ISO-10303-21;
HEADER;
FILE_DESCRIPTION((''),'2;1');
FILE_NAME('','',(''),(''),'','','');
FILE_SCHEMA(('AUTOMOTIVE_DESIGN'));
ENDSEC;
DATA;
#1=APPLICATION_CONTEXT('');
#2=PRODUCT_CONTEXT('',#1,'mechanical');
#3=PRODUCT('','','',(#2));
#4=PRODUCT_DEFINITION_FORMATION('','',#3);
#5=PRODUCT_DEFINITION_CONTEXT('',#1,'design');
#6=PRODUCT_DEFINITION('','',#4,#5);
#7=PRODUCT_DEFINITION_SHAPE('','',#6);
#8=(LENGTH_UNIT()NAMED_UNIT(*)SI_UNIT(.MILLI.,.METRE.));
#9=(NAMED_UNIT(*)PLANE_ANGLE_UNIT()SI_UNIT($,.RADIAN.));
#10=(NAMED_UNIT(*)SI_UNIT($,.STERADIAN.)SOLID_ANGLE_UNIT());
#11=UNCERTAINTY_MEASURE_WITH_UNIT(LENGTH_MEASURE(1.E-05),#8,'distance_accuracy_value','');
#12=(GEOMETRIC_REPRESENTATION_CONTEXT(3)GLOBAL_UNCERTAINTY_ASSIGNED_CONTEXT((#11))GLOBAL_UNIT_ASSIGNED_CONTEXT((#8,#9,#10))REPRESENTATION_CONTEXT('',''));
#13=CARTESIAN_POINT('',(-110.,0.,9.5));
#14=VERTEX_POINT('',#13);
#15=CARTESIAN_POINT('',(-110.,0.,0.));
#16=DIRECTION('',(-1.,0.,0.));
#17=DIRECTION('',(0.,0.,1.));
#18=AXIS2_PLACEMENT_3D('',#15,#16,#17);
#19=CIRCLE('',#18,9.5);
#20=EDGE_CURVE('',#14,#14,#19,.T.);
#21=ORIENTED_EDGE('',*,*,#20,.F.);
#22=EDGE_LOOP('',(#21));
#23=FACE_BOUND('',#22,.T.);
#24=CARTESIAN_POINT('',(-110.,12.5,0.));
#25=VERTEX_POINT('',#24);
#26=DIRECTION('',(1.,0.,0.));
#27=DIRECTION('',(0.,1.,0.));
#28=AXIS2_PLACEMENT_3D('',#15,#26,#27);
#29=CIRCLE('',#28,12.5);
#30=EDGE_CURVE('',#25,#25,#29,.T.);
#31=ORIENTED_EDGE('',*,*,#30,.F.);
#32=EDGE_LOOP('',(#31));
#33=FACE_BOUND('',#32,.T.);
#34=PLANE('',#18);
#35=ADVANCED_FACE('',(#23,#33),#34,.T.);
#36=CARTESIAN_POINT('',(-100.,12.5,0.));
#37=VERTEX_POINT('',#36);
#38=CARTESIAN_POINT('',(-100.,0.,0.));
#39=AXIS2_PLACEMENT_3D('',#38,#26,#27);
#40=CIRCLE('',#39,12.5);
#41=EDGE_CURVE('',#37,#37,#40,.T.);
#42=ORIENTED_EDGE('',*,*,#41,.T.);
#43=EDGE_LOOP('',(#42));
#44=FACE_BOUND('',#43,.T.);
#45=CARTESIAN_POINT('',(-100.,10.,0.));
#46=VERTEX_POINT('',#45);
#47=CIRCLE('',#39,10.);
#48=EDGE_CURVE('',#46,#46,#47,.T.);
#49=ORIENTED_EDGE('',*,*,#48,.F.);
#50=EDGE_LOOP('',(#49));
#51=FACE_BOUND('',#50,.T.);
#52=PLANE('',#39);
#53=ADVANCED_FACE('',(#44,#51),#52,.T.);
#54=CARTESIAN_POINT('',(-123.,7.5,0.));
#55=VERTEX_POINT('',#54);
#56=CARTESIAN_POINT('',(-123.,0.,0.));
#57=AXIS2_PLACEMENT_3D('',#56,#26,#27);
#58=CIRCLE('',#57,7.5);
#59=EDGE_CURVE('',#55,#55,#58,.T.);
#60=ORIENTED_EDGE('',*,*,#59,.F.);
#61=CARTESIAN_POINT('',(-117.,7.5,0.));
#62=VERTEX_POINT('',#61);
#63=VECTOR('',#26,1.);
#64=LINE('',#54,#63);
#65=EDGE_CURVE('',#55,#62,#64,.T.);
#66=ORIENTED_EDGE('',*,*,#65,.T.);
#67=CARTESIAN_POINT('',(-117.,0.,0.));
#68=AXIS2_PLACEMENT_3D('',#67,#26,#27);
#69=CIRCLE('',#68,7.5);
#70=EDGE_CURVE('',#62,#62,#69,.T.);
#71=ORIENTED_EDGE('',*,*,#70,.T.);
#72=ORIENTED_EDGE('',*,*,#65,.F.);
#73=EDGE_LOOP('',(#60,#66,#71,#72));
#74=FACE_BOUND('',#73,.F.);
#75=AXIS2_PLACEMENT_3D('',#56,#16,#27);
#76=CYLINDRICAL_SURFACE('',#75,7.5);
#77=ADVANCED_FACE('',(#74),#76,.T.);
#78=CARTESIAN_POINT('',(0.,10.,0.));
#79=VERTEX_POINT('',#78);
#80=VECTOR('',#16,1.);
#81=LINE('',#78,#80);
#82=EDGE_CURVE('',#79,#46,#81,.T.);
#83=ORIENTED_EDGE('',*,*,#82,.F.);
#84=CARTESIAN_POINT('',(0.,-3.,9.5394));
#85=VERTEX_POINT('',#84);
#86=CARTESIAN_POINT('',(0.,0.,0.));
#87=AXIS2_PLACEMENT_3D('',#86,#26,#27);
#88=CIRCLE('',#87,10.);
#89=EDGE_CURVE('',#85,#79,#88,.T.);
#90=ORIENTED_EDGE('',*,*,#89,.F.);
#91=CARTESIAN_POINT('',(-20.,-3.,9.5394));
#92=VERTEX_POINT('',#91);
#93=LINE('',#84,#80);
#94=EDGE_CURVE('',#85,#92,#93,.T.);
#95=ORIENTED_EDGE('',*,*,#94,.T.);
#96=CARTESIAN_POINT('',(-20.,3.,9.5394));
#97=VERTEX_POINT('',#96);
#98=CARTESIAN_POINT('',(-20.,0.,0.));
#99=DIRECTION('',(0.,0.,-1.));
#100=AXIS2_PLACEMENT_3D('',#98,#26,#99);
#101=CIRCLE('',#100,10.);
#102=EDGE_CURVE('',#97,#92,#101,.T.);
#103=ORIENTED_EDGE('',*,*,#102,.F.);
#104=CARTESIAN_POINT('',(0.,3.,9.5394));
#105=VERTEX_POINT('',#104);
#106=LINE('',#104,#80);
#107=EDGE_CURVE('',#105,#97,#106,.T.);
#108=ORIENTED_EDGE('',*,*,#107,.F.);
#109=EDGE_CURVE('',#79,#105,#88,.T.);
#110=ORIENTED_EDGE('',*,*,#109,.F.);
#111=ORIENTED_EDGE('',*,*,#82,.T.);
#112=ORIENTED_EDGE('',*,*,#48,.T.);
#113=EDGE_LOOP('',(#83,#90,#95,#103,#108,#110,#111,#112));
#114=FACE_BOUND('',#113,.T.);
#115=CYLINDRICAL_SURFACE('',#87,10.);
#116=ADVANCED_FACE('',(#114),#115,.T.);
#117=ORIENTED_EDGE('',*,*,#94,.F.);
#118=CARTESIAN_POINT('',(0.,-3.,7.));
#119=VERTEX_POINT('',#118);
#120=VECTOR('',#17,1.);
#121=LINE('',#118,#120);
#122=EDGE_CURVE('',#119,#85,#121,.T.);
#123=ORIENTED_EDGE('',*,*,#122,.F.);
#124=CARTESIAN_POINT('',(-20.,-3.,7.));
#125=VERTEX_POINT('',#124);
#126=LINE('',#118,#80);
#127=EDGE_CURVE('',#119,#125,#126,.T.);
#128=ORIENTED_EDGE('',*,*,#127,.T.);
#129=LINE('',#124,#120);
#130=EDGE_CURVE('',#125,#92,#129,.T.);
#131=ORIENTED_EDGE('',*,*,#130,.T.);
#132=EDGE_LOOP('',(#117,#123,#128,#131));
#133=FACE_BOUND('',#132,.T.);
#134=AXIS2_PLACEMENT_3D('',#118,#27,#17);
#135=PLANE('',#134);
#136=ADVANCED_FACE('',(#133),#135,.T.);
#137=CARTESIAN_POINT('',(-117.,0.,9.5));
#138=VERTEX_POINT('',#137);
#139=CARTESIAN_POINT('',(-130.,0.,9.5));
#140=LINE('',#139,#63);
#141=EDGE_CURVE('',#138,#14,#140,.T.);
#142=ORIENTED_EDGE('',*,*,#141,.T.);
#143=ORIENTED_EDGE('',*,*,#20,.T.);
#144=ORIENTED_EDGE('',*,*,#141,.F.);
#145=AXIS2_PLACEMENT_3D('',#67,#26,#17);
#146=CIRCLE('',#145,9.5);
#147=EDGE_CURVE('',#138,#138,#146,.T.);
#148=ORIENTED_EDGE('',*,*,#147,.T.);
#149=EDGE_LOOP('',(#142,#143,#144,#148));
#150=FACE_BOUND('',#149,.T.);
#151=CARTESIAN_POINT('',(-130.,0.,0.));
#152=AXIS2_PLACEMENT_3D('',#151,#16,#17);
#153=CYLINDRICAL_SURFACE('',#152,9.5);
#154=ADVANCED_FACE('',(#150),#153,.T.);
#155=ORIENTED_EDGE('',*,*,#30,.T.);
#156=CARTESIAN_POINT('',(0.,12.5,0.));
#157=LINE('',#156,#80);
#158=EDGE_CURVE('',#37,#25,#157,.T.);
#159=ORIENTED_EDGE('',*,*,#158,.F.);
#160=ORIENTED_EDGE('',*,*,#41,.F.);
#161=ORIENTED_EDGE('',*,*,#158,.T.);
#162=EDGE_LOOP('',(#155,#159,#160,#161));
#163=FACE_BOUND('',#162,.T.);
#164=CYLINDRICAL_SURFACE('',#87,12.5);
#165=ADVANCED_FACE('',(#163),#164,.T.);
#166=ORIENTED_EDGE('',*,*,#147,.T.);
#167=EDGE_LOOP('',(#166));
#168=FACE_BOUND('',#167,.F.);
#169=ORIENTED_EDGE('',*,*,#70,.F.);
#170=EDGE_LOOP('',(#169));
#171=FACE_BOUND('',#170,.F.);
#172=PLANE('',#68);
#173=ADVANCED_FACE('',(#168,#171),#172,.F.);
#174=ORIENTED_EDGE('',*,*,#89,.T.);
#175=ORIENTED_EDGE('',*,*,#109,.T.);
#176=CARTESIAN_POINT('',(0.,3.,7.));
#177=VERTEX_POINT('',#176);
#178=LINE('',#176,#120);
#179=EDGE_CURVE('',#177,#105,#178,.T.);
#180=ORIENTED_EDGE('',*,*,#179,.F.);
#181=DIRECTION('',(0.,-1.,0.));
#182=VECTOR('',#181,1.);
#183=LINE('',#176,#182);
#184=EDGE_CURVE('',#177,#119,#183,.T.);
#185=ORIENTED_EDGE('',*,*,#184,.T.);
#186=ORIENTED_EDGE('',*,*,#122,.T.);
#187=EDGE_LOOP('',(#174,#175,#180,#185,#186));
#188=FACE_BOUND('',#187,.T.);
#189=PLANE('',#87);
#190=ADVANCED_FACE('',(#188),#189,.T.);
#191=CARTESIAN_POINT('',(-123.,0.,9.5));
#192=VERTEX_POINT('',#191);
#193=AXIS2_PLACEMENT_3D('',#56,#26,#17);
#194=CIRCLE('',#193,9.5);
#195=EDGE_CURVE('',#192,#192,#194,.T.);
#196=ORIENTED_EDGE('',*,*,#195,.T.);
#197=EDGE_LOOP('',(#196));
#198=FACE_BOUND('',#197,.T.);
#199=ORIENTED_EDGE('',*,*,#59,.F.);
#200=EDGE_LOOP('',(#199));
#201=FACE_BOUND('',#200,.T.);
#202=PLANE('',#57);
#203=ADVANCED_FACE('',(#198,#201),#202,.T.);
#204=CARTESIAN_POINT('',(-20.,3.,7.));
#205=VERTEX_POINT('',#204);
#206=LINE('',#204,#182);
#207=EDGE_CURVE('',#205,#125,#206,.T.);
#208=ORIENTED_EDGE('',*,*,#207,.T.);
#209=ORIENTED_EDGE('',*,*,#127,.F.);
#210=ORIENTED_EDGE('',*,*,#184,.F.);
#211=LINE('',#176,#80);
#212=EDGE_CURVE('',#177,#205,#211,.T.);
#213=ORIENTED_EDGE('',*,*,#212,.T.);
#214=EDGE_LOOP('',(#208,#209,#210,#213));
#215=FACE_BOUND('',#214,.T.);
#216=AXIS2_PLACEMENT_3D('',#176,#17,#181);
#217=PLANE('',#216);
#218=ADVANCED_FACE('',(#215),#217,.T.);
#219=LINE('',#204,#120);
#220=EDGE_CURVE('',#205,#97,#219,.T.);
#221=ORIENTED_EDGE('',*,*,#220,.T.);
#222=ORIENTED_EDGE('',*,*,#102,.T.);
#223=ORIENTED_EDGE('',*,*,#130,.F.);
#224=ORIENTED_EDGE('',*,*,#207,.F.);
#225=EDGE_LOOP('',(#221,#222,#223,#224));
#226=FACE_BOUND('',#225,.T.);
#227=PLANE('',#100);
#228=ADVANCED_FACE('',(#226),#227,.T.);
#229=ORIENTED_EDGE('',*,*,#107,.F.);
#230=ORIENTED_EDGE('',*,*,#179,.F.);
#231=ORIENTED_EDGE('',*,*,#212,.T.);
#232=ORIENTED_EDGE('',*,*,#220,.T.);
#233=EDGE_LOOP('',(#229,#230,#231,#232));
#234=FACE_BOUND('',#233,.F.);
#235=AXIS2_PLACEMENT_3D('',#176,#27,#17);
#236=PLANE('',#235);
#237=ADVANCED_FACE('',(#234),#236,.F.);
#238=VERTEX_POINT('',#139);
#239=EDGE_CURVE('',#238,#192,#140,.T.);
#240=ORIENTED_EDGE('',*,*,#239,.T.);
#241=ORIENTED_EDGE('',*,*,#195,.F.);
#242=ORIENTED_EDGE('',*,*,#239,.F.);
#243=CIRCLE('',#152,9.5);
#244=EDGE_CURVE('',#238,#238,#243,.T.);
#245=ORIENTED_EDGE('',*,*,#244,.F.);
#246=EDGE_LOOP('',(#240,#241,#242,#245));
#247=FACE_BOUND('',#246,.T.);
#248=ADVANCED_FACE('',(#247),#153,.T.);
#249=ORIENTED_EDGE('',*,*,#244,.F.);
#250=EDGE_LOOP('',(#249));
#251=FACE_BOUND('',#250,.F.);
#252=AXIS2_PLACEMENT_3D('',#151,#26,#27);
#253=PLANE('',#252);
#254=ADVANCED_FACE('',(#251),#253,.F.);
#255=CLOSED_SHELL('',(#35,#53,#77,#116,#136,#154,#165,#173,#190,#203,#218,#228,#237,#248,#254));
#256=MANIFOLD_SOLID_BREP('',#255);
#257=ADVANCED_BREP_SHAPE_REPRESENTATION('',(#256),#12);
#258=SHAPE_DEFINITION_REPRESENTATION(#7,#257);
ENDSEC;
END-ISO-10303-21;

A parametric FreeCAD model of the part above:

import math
import FreeCAD as App
import Part
import Sketcher
Q = App.Units.Quantity

doc = App.newDocument("Part")
params = doc.addObject("Spreadsheet::Sheet", "Params")
for row, (alias, value) in enumerate([
    ("sketch1_diameter", "25 mm"),
    ("pad1_length", "130 mm"),
    ("sketch2_diameter", "25 mm"),
    ("sketch2_diameter2", "20 mm"),
    ("pocket1_length", "100 mm"),
    ("sketch3_diameter", "19 mm"),
    ("sketch3_diameter2", "15 mm"),
    ("pocket2_length", "6 mm"),
    ("sketch4_width", "6 mm"),
    ("sketch4_radius", "10 mm"),
    ("pocket3_length", "20 mm"),
    ("sketch5_diameter", "19 mm"),
    ("sketch5_diameter2", "25 mm"),
    ("pocket4_length", "20 mm"),
], start=1):
    params.set(f"A{row}", alias)
    params.set(f"B{row}", "=" + value)
    params.setAlias(f"B{row}", alias)

body = doc.addObject("PartDesign::Body", "Body")

# Sketch on YZ plane
sketch1 = body.newObject("Sketcher::SketchObject", "Sketch")
sketch1.AttachmentSupport = (doc.getObject("YZ_Plane"), [""])
sketch1.MapMode = "FlatFace"
sketch1.addGeometry(Part.Circle(App.Vector(0, 0, 0), App.Vector(0, 0, 1), 12), False)
sketch1.addConstraint([
    Sketcher.Constraint("Coincident", 0, 3, -1, 1),
    Sketcher.Constraint("Diameter", 0, Q("25 mm")),
])
sketch1.setExpression("Constraints[1]", "Params.sketch1_diameter")
pad1 = body.newObject("PartDesign::Pad", "Pad")
pad1.Profile = sketch1
pad1.setExpression("Length", "Params.pad1_length")
pad1.Reversed = True

# Sketch on YZ plane
sketch2 = body.newObject("Sketcher::SketchObject", "Sketch001")
sketch2.AttachmentSupport = (doc.getObject("YZ_Plane"), [""])
sketch2.MapMode = "FlatFace"
sketch2.addGeometry([
    Part.Circle(App.Vector(0, 0, 0), App.Vector(0, 0, 1), 12),
    Part.Circle(App.Vector(0, 0, 0), App.Vector(0, 0, 1), 10),
], False)
sketch2.addConstraint([
    Sketcher.Constraint("Coincident", 0, 3, -1, 1),
    Sketcher.Constraint("Coincident", 1, 3, -1, 1),
    Sketcher.Constraint("Diameter", 0, Q("25 mm")),
    Sketcher.Constraint("Diameter", 1, Q("20 mm")),
])
sketch2.setExpression("Constraints[2]", "Params.sketch2_diameter")
sketch2.setExpression("Constraints[3]", "Params.sketch2_diameter2")
pocket1 = body.newObject("PartDesign::Pocket", "Pocket")
pocket1.Profile = sketch2
pocket1.setExpression("Length", "Params.pocket1_length")

# Sketch on YZ plane
sketch3 = body.newObject("Sketcher::SketchObject", "Sketch002")
sketch3.AttachmentSupport = (doc.getObject("YZ_Plane"), [""])
sketch3.MapMode = "FlatFace"
sketch3.AttachmentOffset = App.Placement(App.Vector(0, 0, -123), App.Rotation())
sketch3.addGeometry([
    Part.Circle(App.Vector(0, 0, 0), App.Vector(0, 0, 1), 10),
    Part.Circle(App.Vector(0, 0, 0), App.Vector(0, 0, 1), 8),
], False)
sketch3.addConstraint([
    Sketcher.Constraint("Coincident", 0, 3, -1, 1),
    Sketcher.Constraint("Coincident", 1, 3, -1, 1),
    Sketcher.Constraint("Diameter", 0, Q("19 mm")),
    Sketcher.Constraint("Diameter", 1, Q("15 mm")),
])
sketch3.setExpression("Constraints[2]", "Params.sketch3_diameter")
sketch3.setExpression("Constraints[3]", "Params.sketch3_diameter2")
pocket2 = body.newObject("PartDesign::Pocket", "Pocket001")
pocket2.Profile = sketch3
pocket2.setExpression("Length", "Params.pocket2_length")
pocket2.Reversed = True

# Sketch on YZ plane
sketch4 = body.newObject("Sketcher::SketchObject", "Sketch003")
sketch4.AttachmentSupport = (doc.getObject("YZ_Plane"), [""])
sketch4.MapMode = "FlatFace"
sketch4.addGeometry([
    Part.LineSegment(App.Vector(-3, 7, 0), App.Vector(3, 7, 0)),
    Part.LineSegment(App.Vector(3, 7, 0), App.Vector(3, 9.5, 0)),
    Part.ArcOfCircle(Part.Circle(App.Vector(0, 0, 0), App.Vector(0, 0, 1), 10), math.radians(73), math.radians(107)),
    Part.LineSegment(App.Vector(-3, 9.5, 0), App.Vector(-3, 7, 0)),
], False)
sketch4.addConstraint([
    Sketcher.Constraint("Coincident", 0, 2, 1, 1),
    Sketcher.Constraint("Coincident", 1, 2, 2, 1),
    Sketcher.Constraint("Coincident", 2, 2, 3, 1),
    Sketcher.Constraint("Coincident", 3, 2, 0, 1),
    Sketcher.Constraint("Horizontal", 0),
    Sketcher.Constraint("Vertical", 1),
    Sketcher.Constraint("Vertical", 3),
    Sketcher.Constraint("Coincident", 2, 3, -1, 1),
    Sketcher.Constraint("Horizontal", 1, 2, 2, 2),
    Sketcher.Constraint("DistanceX", 0, 1, 0, 2, Q("6 mm")),
    Sketcher.Constraint("DistanceY", -1, 1, 0, 2, Q("7 mm")),
    Sketcher.Constraint("Radius", 2, Q("10 mm")),
])
sketch4.setExpression("Constraints[9]", "Params.sketch4_width")
sketch4.setExpression("Constraints[11]", "Params.sketch4_radius")
pocket3 = body.newObject("PartDesign::Pocket", "Pocket002")
pocket3.Profile = sketch4
pocket3.setExpression("Length", "Params.pocket3_length")

# Sketch on YZ plane
sketch5 = body.newObject("Sketcher::SketchObject", "Sketch004")
sketch5.AttachmentSupport = (doc.getObject("YZ_Plane"), [""])
sketch5.MapMode = "FlatFace"
sketch5.AttachmentOffset = App.Placement(App.Vector(0, 0, -130), App.Rotation())
sketch5.addGeometry([
    Part.Circle(App.Vector(0, 0, 0), App.Vector(0, 0, 1), 12),
    Part.Circle(App.Vector(0, 0, 0), App.Vector(0, 0, 1), 10),
], False)
sketch5.addConstraint([
    Sketcher.Constraint("Coincident", 0, 3, -1, 1),
    Sketcher.Constraint("Coincident", 1, 3, -1, 1),
    Sketcher.Constraint("Diameter", 1, Q("19 mm")),
    Sketcher.Constraint("Diameter", 0, Q("25 mm")),
])
sketch5.setExpression("Constraints[2]", "Params.sketch5_diameter")
sketch5.setExpression("Constraints[3]", "Params.sketch5_diameter2")
pocket4 = body.newObject("PartDesign::Pocket", "Pocket003")
pocket4.Profile = sketch5
pocket4.setExpression("Length", "Params.pocket4_length")
pocket4.Reversed = True

doc.recompute()
